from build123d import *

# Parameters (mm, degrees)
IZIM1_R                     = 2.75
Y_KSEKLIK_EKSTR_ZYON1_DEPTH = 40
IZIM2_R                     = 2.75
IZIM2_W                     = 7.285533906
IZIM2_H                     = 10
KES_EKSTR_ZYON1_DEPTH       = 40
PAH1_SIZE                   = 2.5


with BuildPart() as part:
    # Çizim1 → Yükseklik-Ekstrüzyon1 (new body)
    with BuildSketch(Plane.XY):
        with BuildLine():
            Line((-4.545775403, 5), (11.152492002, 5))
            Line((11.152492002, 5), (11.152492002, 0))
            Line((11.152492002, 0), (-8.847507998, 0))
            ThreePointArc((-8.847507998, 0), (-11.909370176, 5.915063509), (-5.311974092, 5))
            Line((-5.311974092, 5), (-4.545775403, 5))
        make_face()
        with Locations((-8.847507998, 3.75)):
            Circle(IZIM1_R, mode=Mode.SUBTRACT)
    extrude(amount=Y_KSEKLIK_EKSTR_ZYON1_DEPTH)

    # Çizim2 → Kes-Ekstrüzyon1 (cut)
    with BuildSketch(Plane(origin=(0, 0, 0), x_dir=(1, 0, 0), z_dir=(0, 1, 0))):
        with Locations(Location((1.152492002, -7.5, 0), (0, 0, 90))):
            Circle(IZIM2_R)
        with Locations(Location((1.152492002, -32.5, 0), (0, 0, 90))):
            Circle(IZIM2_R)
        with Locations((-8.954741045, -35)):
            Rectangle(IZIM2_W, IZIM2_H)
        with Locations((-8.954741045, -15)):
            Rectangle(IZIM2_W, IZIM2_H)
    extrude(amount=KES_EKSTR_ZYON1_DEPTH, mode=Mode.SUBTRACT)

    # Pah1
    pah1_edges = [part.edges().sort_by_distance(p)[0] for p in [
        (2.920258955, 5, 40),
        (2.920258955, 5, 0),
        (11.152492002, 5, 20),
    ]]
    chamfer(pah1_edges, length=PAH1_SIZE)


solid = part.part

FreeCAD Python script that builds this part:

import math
import FreeCAD as App
import Part
import Sketcher

V = App.Vector
Q = App.Units.Quantity


def edges_at(feature, points):
    """Names of the edges that pass closest to the given points."""
    edges = feature.Shape.Edges
    near = lambda p: min(range(len(edges)), key=lambda i: edges[i].distToShape(Part.Vertex(*p))[0])
    return sorted({f"Edge{near(p) + 1}" for p in points})

doc = App.newDocument("Part")
body = doc.addObject("PartDesign::Body", "Body")

sketch1 = body.newObject("Sketcher::SketchObject", "Sketch")
sketch1.AttachmentSupport = (doc.getObject("XY_Plane"), [""])
sketch1.MapMode = "FlatFace"
sketch1.addGeometry([
    Part.LineSegment(V(11.152492, 0, 0), V(11.152492, 5, 0)),
    Part.LineSegment(V(11.152492, 5, 0), V(-5.311974, 5, 0)),
    Part.ArcOfCircle(Part.Circle(V(-8.847508, 3.75, 0), V(0, 0, 1), 3.75), math.radians(19.471221), math.radians(270)),
    Part.LineSegment(V(-8.847508, 0, 0), V(11.152492, 0, 0)),
    Part.Circle(V(-8.847508, 3.75, 0), V(0, 0, 1), 2.75),
], False)
sketch1.addConstraint([
    Sketcher.Constraint("Coincident", 0, 2, 1, 1),
    Sketcher.Constraint("Coincident", 1, 2, 2, 1),
    Sketcher.Constraint("Tangent", 2, 2, 3, 1),
    Sketcher.Constraint("Coincident", 3, 2, 0, 1),
    Sketcher.Constraint("Vertical", 0),
    Sketcher.Constraint("Horizontal", 1),
    Sketcher.Constraint("Horizontal", 3),
    Sketcher.Constraint("Coincident", 4, 3, 2, 3),
    Sketcher.Constraint("PointOnObject", 2, 2, -1),
    Sketcher.Constraint("Diameter", 4, Q("5.5 mm")),
    Sketcher.Constraint("DistanceX", 3, 1, 3, 2, Q("20 mm")),
    Sketcher.Constraint("DistanceY", 0, 1, 0, 2, Q("5 mm")),
    Sketcher.Constraint("Radius", 2, Q("3.75 mm")),
    Sketcher.Constraint("DistanceX", 2, 3, -1, 1, Q("8.847508 mm")),
])
pad1 = body.newObject("PartDesign::Pad", "Pad")
pad1.Profile = sketch1
pad1.Length = 40

sketch2 = body.newObject("Sketcher::SketchObject", "Sketch001")
sketch2.AttachmentSupport = (doc.getObject("XZ_Plane"), [""])
sketch2.MapMode = "FlatFace"
sketch2.addGeometry([
    Part.Circle(V(1.152492, 7.5, 0), V(0, 0, 1), 2.75),
    Part.Circle(V(1.152492, 32.5, 0), V(0, 0, 1), 2.75),
    Part.LineSegment(V(-12.597508, 30, 0), V(-12.597508, 40, 0)),
    Part.LineSegment(V(-12.597508, 40, 0), V(-5.311974, 40, 0)),
    Part.LineSegment(V(-5.311974, 40, 0), V(-5.311974, 30, 0)),
    Part.LineSegment(V(-5.311974, 30, 0), V(-12.597508, 30, 0)),
    Part.LineSegment(V(-12.597508, 10, 0), V(-12.597508, 20, 0)),
    Part.LineSegment(V(-12.597508, 20, 0), V(-5.311974, 20, 0)),
    Part.LineSegment(V(-5.311974, 20, 0), V(-5.311974, 10, 0)),
    Part.LineSegment(V(-5.311974, 10, 0), V(-12.597508, 10, 0)),
], False)
sketch2.addConstraint([
    Sketcher.Constraint("Coincident", 2, 2, 3, 1),
    Sketcher.Constraint("Coincident", 3, 2, 4, 1),
    Sketcher.Constraint("Coincident", 4, 2, 5, 1),
    Sketcher.Constraint("Coincident", 5, 2, 2, 1),
    Sketcher.Constraint("Coincident", 6, 2, 7, 1),
    Sketcher.Constraint("Coincident", 7, 2, 8, 1),
    Sketcher.Constraint("Coincident", 8, 2, 9, 1),
    Sketcher.Constraint("Coincident", 9, 2, 6, 1),
    Sketcher.Constraint("Vertical", 2),
    Sketcher.Constraint("Horizontal", 3),
    Sketcher.Constraint("Vertical", 4),
    Sketcher.Constraint("Horizontal", 5),
    Sketcher.Constraint("Vertical", 6),
    Sketcher.Constraint("Horizontal", 7),
    Sketcher.Constraint("Vertical", 8),
    Sketcher.Constraint("Horizontal", 9),
    Sketcher.Constraint("Equal", 0, 1),
    Sketcher.Constraint("Vertical", 0, 3, 1, 3),
    Sketcher.Constraint("Vertical", 5, 2, 6, 2),
    Sketcher.Constraint("Vertical", 4, 2, 7, 2),
    Sketcher.Constraint("Equal", 4, 6),
    Sketcher.Constraint("Diameter", 0, Q("5.5 mm")),
    Sketcher.Constraint("DistanceY", 2, 1, 2, 2, Q("10 mm")),
    Sketcher.Constraint("DistanceY", -1, 1, 2, 2, Q("40 mm")),
    Sketcher.Constraint("DistanceY", -1, 1, 6, 2, Q("20 mm")),
    Sketcher.Constraint("DistanceY", 0, 3, 1, 3, Q("25 mm")),
    Sketcher.Constraint("DistanceY", -1, 1, 0, 3, Q("7.5 mm")),
    Sketcher.Constraint("DistanceX", 2, 2, 1, 3, Q("13.75 mm")),
    Sketcher.Constraint("DistanceX", 3, 1, 3, 2, Q("7.285534 mm")),
    Sketcher.Constraint("DistanceX", -1, 1, 0, 3, Q("1.152492 mm")),
])
pocket1 = body.newObject("PartDesign::Pocket", "Pocket")
pocket1.Profile = sketch2
pocket1.Length = 40
doc.recompute()

chamfer = body.newObject("PartDesign::Chamfer", "Chamfer")
chamfer.Base = (pocket1, edges_at(pocket1, [(2.92, 5, 40), (2.92, 5, 0), (11.152, 5, 20)]))
chamfer.Size = 2.5

doc.recompute()
